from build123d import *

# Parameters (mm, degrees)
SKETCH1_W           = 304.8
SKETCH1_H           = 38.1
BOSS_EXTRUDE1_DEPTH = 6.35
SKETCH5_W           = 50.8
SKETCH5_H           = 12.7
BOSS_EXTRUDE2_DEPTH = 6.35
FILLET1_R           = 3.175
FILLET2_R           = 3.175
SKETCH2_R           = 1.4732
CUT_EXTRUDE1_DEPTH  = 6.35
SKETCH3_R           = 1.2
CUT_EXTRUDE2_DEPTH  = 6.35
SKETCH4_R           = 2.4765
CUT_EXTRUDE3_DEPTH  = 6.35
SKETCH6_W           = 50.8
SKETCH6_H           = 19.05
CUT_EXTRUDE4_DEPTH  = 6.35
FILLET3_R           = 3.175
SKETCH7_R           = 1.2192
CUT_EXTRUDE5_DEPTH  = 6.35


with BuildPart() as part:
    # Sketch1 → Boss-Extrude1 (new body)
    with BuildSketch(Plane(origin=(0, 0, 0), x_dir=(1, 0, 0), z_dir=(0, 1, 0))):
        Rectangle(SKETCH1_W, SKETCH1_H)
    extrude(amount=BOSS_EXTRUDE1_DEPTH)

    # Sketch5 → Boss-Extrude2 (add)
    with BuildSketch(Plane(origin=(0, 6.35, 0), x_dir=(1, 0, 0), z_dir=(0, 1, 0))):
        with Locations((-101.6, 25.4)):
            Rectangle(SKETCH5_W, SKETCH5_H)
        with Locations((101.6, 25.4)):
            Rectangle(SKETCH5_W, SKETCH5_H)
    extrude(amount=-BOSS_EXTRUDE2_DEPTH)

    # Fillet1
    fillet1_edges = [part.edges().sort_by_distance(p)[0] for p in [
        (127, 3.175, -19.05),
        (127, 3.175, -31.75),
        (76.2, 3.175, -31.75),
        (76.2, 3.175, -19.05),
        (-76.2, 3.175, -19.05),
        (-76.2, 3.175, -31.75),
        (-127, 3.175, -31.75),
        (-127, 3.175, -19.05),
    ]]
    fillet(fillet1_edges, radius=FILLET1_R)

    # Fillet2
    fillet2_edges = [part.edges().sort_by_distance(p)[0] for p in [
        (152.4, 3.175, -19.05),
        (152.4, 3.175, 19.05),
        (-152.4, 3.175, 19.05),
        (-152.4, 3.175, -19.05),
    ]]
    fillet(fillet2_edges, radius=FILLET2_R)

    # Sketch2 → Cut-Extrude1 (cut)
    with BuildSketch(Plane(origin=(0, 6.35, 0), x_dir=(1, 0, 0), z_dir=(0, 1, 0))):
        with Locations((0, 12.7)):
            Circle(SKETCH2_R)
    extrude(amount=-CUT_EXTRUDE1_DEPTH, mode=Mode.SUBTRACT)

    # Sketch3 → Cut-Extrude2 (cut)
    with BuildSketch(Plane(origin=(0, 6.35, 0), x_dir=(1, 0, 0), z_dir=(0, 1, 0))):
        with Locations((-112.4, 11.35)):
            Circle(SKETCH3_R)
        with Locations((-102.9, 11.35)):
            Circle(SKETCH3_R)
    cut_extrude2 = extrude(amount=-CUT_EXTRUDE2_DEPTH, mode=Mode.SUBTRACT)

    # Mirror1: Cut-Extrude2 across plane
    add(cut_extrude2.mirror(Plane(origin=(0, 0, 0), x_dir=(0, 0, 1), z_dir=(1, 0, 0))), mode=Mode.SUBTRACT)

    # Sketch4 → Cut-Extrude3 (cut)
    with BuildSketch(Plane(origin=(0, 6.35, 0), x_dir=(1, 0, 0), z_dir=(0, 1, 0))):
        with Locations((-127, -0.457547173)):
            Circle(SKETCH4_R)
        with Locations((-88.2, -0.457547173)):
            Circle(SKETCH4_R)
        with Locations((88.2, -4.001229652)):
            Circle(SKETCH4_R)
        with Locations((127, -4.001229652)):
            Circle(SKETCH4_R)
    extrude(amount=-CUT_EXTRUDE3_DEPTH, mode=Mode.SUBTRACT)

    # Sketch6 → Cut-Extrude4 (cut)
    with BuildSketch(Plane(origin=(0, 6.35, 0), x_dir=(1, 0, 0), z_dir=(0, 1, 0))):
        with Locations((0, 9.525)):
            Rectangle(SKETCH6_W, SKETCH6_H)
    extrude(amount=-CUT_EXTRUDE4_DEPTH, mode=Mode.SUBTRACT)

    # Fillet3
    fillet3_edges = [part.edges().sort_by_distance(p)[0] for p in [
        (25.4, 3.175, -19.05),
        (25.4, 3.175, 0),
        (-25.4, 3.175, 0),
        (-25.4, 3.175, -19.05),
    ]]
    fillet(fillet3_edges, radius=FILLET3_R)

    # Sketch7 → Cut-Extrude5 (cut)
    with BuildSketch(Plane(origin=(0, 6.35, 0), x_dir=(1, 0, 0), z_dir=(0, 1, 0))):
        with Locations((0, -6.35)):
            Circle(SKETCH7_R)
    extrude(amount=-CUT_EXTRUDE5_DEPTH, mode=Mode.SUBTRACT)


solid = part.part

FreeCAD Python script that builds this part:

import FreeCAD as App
import Part
import Sketcher
from FreeCAD import Vector
Q = App.Units.Quantity


def edges_at(feature, points):
    """Names of the edges that pass closest to the given points."""
    edges = feature.Shape.Edges
    near = lambda p: min(range(len(edges)), key=lambda i: edges[i].distToShape(Part.Vertex(*p))[0])
    return sorted({f"Edge{near(p) + 1}" for p in points})


def add_polygon(sketch, points):
    """Adds a closed chain of lines whose ends are joined by coincident constraints."""
    first, n = sketch.GeometryCount, len(points)
    for a, b in zip(points, points[1:] + points[:1]):
        sketch.addGeometry(Part.LineSegment(App.Vector(*a, 0), App.Vector(*b, 0)), False)
    for i in range(n):
        sketch.addConstraint(Sketcher.Constraint("Coincident", first + i, 2, first + (i + 1) % n, 1))

doc = App.newDocument("Part")
body = doc.addObject("PartDesign::Body", "Body")

sketch1 = body.newObject("Sketcher::SketchObject", "Sketch")
sketch1.AttachmentSupport = (doc.getObject("XZ_Plane"), [""])
sketch1.MapMode = "FlatFace"
add_polygon(sketch1, [(-152.4, -19.05), (-152.4, 19.05), (152.4, 19.05), (152.4, -19.05)])
sketch1.addConstraint(Sketcher.Constraint("Vertical", 0))
sketch1.addConstraint(Sketcher.Constraint("Horizontal", 1))
sketch1.addConstraint(Sketcher.Constraint("Vertical", 2))
sketch1.addConstraint(Sketcher.Constraint("Horizontal", 3))
sketch1.addConstraint(Sketcher.Constraint("Symmetric", 0, 2, 2, 2, -1, 1))
sketch1.addConstraint(Sketcher.Constraint("DistanceX", 1, 1, 1, 2, Q("12 in")))
sketch1.addConstraint(Sketcher.Constraint("DistanceY", 0, 1, 0, 2, Q("1.5 in")))
pad1 = body.newObject("PartDesign::Pad", "Pad")
pad1.Profile = sketch1
pad1.Length = Q("0.25 in")
pad1.Reversed = True

sketch2 = body.newObject("Sketcher::SketchObject", "Sketch001")
sketch2.AttachmentSupport = (doc.getObject("XZ_Plane"), [""])
sketch2.MapMode = "FlatFace"
sketch2.AttachmentOffset = App.Placement(Vector(0, 0, -0.25 * 25.4), App.Rotation())
add_polygon(sketch2, [(-127, -31.75), (-127, -19.05), (-76.2, -19.05), (-76.2, -31.75)])
add_polygon(sketch2, [(76.2, -31.75), (76.2, -19.05), (127, -19.05), (127, -31.75)])
sketch2.addConstraint(Sketcher.Constraint("Vertical", 0))
sketch2.addConstraint(Sketcher.Constraint("Horizontal", 1))
sketch2.addConstraint(Sketcher.Constraint("Vertical", 2))
sketch2.addConstraint(Sketcher.Constraint("Horizontal", 3))
sketch2.addConstraint(Sketcher.Constraint("Vertical", 4))
sketch2.addConstraint(Sketcher.Constraint("Horizontal", 5))
sketch2.addConstraint(Sketcher.Constraint("Vertical", 6))
sketch2.addConstraint(Sketcher.Constraint("Horizontal", 7))
sketch2.addConstraint(Sketcher.Constraint("Symmetric", 1, 2, 4, 2, -2))
sketch2.addConstraint(Sketcher.Constraint("Symmetric", 3, 2, 6, 2, -2))
sketch2.addConstraint(Sketcher.Constraint("DistanceX", 1, 1, 1, 2, Q("2 in")))
sketch2.addConstraint(Sketcher.Constraint("DistanceY", 0, 1, 0, 2, Q("0.5 in")))
sketch2.addConstraint(Sketcher.Constraint("DistanceX", 0, 2, -1, 1, Q("5 in")))
sketch2.addConstraint(Sketcher.Constraint("DistanceY", 0, 2, -1, 1, Q("0.75 in")))
pad2 = body.newObject("PartDesign::Pad", "Pad001")
pad2.Profile = sketch2
pad2.Length = Q("0.25 in")
doc.recompute()

fillet = body.newObject("PartDesign::Fillet", "Fillet")
fillet.Base = (pad2, edges_at(pad2, [
    (127, 3.175, -19.05),
    (127, 3.175, -31.75),
    (76.2, 3.175, -31.75),
    (76.2, 3.175, -19.05),
    (-76.2, 3.175, -19.05),
    (-76.2, 3.175, -31.75),
    (-127, 3.175, -31.75),
    (-127, 3.175, -19.05),
]))
fillet.Radius = Q("0.125 in")
doc.recompute()

fillet2 = body.newObject("PartDesign::Fillet", "Fillet001")
fillet2.Base = (fillet, edges_at(fillet, [
    (152.4, 3.175, -19.05),
    (152.4, 3.175, 19.05),
    (-152.4, 3.175, 19.05),
    (-152.4, 3.175, -19.05),
]))
fillet2.Radius = Q("0.125 in")

sketch3 = body.newObject("Sketcher::SketchObject", "Sketch002")
sketch3.AttachmentSupport = (doc.getObject("XZ_Plane"), [""])
sketch3.MapMode = "FlatFace"
sketch3.AttachmentOffset = App.Placement(Vector(0, 0, -0.25 * 25.4), App.Rotation())
sketch3.addGeometry(Part.Circle(Vector(0, -12.7, 0), Vector(0, 0, 1), 1.4732), False)
sketch3.addConstraint(Sketcher.Constraint("PointOnObject", 0, 3, -2))
sketch3.addConstraint(Sketcher.Constraint("Diameter", 0, Q("0.116 in")))
sketch3.addConstraint(Sketcher.Constraint("DistanceY", 0, 3, -1, 1, Q("0.5 in")))
pocket1 = body.newObject("PartDesign::Pocket", "Pocket")
pocket1.Profile = sketch3
pocket1.Length = Q("0.25 in")
pocket1.Reversed = True

sketch4 = body.newObject("Sketcher::SketchObject", "Sketch003")
sketch4.AttachmentSupport = (doc.getObject("XZ_Plane"), [""])
sketch4.MapMode = "FlatFace"
sketch4.AttachmentOffset = App.Placement(Vector(0, 0, -0.25 * 25.4), App.Rotation())
sketch4.addGeometry(Part.Circle(Vector(-112.4, -11.35, 0), Vector(0, 0, 1), 1.2), False)
sketch4.addGeometry(Part.Circle(Vector(-102.9, -11.35, 0), Vector(0, 0, 1), 1.2), False)
sketch4.addConstraint(Sketcher.Constraint("Equal", 0, 1))
sketch4.addConstraint(Sketcher.Constraint("Horizontal", 0, 3, 1, 3))
sketch4.addConstraint(Sketcher.Constraint("Diameter", 0, Q("2.4 mm")))
sketch4.addConstraint(Sketcher.Constraint("DistanceX", 0, 3, -1, 1, Q("112.4 mm")))
sketch4.addConstraint(Sketcher.Constraint("DistanceY", 0, 3, -1, 1, Q("11.35 mm")))
sketch4.addConstraint(Sketcher.Constraint("DistanceX", 1, 3, -1, 1, Q("102.9 mm")))
pocket2 = body.newObject("PartDesign::Pocket", "Pocket001")
pocket2.Profile = sketch4
pocket2.Length = Q("0.25 in")
pocket2.Reversed = True
doc.recompute()

mirrored = body.newObject("PartDesign::Mirrored", "Mirrored")
mirrored.Originals = [pocket2]
mirrored.MirrorPlane = (doc.getObject("YZ_Plane"), [""])
body.Tip = mirrored

sketch5 = body.newObject("Sketcher::SketchObject", "Sketch004")
sketch5.AttachmentSupport = (doc.getObject("XZ_Plane"), [""])
sketch5.MapMode = "FlatFace"
sketch5.AttachmentOffset = App.Placement(Vector(0, 0, -0.25 * 25.4), App.Rotation())
sketch5.addGeometry(Part.Circle(Vector(-127, 0.457547, 0), Vector(0, 0, 1), 2.4765), False)
sketch5.addGeometry(Part.Circle(Vector(-88.2, 0.457547, 0), Vector(0, 0, 1), 2.4765), False)
sketch5.addGeometry(Part.Circle(Vector(88.2, 4.00123, 0), Vector(0, 0, 1), 2.4765), False)
sketch5.addGeometry(Part.Circle(Vector(127, 4.00123, 0), Vector(0, 0, 1), 2.4765), False)
sketch5.addConstraint(Sketcher.Constraint("Equal", 0, 1))
sketch5.addConstraint(Sketcher.Constraint("Equal", 1, 2))
sketch5.addConstraint(Sketcher.Constraint("Equal", 2, 3))
sketch5.addConstraint(Sketcher.Constraint("Horizontal", 0, 3, 1, 3))
sketch5.addConstraint(Sketcher.Constraint("Horizontal", 2, 3, 3, 3))
sketch5.addConstraint(Sketcher.Constraint("Diameter", 0, Q("0.195 in")))
sketch5.addConstraint(Sketcher.Constraint("DistanceX", 0, 3, -1, 1, Q("5 in")))
sketch5.addConstraint(Sketcher.Constraint("DistanceX", -1, 1, 3, 3, Q("5 in")))
sketch5.addConstraint(Sketcher.Constraint("DistanceX", 1, 3, -1, 1, Q("88.2 mm")))
sketch5.addConstraint(Sketcher.Constraint("DistanceX", -1, 1, 2, 3, Q("88.2 mm")))
sketch5.addConstraint(Sketcher.Constraint("DistanceY", -1, 1, 2, 3, Q("4.00123 mm")))
sketch5.addConstraint(Sketcher.Constraint("DistanceY", -1, 1, 0, 3, Q("0.457547 mm")))
pocket3 = body.newObject("PartDesign::Pocket", "Pocket002")
pocket3.Profile = sketch5
pocket3.Length = Q("0.25 in")
pocket3.Reversed = True

sketch6 = body.newObject("Sketcher::SketchObject", "Sketch005")
sketch6.AttachmentSupport = (doc.getObject("XZ_Plane"), [""])
sketch6.MapMode = "FlatFace"
sketch6.AttachmentOffset = App.Placement(Vector(0, 0, -0.25 * 25.4), App.Rotation())
add_polygon(sketch6, [(-25.4, -19.05), (-25.4, 0), (25.4, 0), (25.4, -19.05)])
sketch6.addConstraint(Sketcher.Constraint("Vertical", 0))
sketch6.addConstraint(Sketcher.Constraint("Horizontal", 1))
sketch6.addConstraint(Sketcher.Constraint("Vertical", 2))
sketch6.addConstraint(Sketcher.Constraint("Horizontal", 3))
sketch6.addConstraint(Sketcher.Constraint("Symmetric", 0, 2, 1, 2, -1, 1))
sketch6.addConstraint(Sketcher.Constraint("DistanceX", 1, 1, 1, 2, Q("2 in")))
sketch6.addConstraint(Sketcher.Constraint("DistanceY", 0, 1, 0, 2, Q("0.75 in")))
pocket4 = body.newObject("PartDesign::Pocket", "Pocket003")
pocket4.Profile = sketch6
pocket4.Length = Q("0.25 in")
pocket4.Reversed = True
doc.recompute()

fillet3 = body.newObject("PartDesign::Fillet", "Fillet002")
fillet3.Base = (pocket4, edges_at(pocket4, [
    (25.4, 3.175, -19.05),
    (25.4, 3.175, 0),
    (-25.4, 3.175, 0),
    (-25.4, 3.175, -19.05),
]))
fillet3.Radius = Q("0.125 in")

sketch7 = body.newObject("Sketcher::SketchObject", "Sketch006")
sketch7.AttachmentSupport = (doc.getObject("XZ_Plane"), [""])
sketch7.MapMode = "FlatFace"
sketch7.AttachmentOffset = App.Placement(Vector(0, 0, -0.25 * 25.4), App.Rotation())
sketch7.addGeometry(Part.Circle(Vector(0, 6.35, 0), Vector(0, 0, 1), 1.2192), False)
sketch7.addConstraint(Sketcher.Constraint("PointOnObject", 0, 3, -2))
sketch7.addConstraint(Sketcher.Constraint("Diameter", 0, Q("0.096 in")))
sketch7.addConstraint(Sketcher.Constraint("DistanceY", -1, 1, 0, 3, Q("0.25 in")))
pocket5 = body.newObject("PartDesign::Pocket", "Pocket004")
pocket5.Profile = sketch7
pocket5.Length = Q("0.25 in")
pocket5.Reversed = True

doc.recompute()
